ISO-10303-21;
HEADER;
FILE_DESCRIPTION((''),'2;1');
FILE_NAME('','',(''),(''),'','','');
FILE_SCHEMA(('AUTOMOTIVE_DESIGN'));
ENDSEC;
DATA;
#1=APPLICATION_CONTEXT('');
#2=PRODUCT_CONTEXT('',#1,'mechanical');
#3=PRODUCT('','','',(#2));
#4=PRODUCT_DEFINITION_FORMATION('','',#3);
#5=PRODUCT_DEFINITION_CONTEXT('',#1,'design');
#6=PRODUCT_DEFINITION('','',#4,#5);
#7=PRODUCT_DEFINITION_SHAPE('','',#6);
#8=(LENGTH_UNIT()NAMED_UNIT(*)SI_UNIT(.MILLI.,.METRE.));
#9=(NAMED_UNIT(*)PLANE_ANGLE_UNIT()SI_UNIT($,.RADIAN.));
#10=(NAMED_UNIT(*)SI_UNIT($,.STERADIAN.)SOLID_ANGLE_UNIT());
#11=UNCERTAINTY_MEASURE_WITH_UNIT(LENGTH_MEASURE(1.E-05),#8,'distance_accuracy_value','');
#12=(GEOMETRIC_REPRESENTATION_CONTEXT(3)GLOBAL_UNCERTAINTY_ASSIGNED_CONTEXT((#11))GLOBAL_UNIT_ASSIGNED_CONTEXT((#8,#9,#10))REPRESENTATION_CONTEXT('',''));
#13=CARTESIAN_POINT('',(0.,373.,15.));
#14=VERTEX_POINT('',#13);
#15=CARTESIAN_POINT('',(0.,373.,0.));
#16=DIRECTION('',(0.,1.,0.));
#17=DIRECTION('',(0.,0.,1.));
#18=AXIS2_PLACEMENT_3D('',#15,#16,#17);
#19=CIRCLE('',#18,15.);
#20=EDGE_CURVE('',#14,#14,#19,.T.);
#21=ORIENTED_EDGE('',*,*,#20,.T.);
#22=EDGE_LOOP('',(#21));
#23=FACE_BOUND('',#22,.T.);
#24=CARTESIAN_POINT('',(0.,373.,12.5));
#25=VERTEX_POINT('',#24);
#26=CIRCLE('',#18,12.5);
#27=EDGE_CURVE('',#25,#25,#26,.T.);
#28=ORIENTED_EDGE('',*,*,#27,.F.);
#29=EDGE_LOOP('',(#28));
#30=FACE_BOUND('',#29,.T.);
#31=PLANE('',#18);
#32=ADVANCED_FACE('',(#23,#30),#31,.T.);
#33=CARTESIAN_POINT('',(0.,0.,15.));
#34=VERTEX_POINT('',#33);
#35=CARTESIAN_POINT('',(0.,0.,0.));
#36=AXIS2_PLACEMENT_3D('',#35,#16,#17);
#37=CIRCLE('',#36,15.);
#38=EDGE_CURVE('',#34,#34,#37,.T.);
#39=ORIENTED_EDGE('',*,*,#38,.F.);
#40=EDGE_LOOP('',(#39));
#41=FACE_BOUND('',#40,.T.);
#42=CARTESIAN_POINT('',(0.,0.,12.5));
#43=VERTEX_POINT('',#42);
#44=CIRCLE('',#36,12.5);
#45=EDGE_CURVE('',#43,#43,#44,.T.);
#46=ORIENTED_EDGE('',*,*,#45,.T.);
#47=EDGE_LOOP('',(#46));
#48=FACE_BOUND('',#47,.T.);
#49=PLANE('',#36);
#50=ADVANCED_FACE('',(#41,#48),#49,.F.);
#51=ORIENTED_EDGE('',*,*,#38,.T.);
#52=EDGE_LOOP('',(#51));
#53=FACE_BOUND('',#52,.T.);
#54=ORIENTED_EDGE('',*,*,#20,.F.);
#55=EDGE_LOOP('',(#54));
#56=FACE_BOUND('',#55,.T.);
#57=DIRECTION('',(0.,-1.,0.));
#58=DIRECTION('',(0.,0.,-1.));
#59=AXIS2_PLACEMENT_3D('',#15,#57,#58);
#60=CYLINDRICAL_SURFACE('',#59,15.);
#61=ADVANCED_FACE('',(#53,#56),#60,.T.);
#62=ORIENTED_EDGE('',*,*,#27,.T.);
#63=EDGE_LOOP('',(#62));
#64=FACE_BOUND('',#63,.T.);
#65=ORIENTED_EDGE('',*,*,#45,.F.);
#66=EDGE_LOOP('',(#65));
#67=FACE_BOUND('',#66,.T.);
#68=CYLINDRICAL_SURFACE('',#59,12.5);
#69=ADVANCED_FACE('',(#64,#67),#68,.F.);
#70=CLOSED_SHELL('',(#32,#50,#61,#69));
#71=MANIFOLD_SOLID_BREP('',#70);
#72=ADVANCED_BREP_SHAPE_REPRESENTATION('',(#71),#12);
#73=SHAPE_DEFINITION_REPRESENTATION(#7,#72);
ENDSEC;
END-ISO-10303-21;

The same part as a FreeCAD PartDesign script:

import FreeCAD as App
import Part
import Sketcher
from FreeCAD import Vector

doc = App.newDocument("Part")
body = doc.addObject("PartDesign::Body", "Body")

# Sketch on XZ plane
sketch1 = body.newObject("Sketcher::SketchObject", "Sketch")
sketch1.AttachmentSupport = (doc.getObject("XZ_Plane"), [""])
sketch1.MapMode = "FlatFace"
sketch1.addGeometry([
    Part.Circle(Vector(0, 0, 0), Vector(0, 0, 1), 15),
    Part.Circle(Vector(0, 0, 0), Vector(0, 0, 1), 12.5),
], False)
sketch1.addConstraint([
    Sketcher.Constraint("Coincident", 0, 3, -1, 1),
    Sketcher.Constraint("Coincident", 1, 3, -1, 1),
    Sketcher.Constraint("Diameter", 0, 30.0),
    Sketcher.Constraint("Diameter", 1, 25.0),
])
pad1 = body.newObject("PartDesign::Pad", "Pad")
pad1.Profile = sketch1
pad1.Length = 373
pad1.Reversed = True

doc.recompute()
